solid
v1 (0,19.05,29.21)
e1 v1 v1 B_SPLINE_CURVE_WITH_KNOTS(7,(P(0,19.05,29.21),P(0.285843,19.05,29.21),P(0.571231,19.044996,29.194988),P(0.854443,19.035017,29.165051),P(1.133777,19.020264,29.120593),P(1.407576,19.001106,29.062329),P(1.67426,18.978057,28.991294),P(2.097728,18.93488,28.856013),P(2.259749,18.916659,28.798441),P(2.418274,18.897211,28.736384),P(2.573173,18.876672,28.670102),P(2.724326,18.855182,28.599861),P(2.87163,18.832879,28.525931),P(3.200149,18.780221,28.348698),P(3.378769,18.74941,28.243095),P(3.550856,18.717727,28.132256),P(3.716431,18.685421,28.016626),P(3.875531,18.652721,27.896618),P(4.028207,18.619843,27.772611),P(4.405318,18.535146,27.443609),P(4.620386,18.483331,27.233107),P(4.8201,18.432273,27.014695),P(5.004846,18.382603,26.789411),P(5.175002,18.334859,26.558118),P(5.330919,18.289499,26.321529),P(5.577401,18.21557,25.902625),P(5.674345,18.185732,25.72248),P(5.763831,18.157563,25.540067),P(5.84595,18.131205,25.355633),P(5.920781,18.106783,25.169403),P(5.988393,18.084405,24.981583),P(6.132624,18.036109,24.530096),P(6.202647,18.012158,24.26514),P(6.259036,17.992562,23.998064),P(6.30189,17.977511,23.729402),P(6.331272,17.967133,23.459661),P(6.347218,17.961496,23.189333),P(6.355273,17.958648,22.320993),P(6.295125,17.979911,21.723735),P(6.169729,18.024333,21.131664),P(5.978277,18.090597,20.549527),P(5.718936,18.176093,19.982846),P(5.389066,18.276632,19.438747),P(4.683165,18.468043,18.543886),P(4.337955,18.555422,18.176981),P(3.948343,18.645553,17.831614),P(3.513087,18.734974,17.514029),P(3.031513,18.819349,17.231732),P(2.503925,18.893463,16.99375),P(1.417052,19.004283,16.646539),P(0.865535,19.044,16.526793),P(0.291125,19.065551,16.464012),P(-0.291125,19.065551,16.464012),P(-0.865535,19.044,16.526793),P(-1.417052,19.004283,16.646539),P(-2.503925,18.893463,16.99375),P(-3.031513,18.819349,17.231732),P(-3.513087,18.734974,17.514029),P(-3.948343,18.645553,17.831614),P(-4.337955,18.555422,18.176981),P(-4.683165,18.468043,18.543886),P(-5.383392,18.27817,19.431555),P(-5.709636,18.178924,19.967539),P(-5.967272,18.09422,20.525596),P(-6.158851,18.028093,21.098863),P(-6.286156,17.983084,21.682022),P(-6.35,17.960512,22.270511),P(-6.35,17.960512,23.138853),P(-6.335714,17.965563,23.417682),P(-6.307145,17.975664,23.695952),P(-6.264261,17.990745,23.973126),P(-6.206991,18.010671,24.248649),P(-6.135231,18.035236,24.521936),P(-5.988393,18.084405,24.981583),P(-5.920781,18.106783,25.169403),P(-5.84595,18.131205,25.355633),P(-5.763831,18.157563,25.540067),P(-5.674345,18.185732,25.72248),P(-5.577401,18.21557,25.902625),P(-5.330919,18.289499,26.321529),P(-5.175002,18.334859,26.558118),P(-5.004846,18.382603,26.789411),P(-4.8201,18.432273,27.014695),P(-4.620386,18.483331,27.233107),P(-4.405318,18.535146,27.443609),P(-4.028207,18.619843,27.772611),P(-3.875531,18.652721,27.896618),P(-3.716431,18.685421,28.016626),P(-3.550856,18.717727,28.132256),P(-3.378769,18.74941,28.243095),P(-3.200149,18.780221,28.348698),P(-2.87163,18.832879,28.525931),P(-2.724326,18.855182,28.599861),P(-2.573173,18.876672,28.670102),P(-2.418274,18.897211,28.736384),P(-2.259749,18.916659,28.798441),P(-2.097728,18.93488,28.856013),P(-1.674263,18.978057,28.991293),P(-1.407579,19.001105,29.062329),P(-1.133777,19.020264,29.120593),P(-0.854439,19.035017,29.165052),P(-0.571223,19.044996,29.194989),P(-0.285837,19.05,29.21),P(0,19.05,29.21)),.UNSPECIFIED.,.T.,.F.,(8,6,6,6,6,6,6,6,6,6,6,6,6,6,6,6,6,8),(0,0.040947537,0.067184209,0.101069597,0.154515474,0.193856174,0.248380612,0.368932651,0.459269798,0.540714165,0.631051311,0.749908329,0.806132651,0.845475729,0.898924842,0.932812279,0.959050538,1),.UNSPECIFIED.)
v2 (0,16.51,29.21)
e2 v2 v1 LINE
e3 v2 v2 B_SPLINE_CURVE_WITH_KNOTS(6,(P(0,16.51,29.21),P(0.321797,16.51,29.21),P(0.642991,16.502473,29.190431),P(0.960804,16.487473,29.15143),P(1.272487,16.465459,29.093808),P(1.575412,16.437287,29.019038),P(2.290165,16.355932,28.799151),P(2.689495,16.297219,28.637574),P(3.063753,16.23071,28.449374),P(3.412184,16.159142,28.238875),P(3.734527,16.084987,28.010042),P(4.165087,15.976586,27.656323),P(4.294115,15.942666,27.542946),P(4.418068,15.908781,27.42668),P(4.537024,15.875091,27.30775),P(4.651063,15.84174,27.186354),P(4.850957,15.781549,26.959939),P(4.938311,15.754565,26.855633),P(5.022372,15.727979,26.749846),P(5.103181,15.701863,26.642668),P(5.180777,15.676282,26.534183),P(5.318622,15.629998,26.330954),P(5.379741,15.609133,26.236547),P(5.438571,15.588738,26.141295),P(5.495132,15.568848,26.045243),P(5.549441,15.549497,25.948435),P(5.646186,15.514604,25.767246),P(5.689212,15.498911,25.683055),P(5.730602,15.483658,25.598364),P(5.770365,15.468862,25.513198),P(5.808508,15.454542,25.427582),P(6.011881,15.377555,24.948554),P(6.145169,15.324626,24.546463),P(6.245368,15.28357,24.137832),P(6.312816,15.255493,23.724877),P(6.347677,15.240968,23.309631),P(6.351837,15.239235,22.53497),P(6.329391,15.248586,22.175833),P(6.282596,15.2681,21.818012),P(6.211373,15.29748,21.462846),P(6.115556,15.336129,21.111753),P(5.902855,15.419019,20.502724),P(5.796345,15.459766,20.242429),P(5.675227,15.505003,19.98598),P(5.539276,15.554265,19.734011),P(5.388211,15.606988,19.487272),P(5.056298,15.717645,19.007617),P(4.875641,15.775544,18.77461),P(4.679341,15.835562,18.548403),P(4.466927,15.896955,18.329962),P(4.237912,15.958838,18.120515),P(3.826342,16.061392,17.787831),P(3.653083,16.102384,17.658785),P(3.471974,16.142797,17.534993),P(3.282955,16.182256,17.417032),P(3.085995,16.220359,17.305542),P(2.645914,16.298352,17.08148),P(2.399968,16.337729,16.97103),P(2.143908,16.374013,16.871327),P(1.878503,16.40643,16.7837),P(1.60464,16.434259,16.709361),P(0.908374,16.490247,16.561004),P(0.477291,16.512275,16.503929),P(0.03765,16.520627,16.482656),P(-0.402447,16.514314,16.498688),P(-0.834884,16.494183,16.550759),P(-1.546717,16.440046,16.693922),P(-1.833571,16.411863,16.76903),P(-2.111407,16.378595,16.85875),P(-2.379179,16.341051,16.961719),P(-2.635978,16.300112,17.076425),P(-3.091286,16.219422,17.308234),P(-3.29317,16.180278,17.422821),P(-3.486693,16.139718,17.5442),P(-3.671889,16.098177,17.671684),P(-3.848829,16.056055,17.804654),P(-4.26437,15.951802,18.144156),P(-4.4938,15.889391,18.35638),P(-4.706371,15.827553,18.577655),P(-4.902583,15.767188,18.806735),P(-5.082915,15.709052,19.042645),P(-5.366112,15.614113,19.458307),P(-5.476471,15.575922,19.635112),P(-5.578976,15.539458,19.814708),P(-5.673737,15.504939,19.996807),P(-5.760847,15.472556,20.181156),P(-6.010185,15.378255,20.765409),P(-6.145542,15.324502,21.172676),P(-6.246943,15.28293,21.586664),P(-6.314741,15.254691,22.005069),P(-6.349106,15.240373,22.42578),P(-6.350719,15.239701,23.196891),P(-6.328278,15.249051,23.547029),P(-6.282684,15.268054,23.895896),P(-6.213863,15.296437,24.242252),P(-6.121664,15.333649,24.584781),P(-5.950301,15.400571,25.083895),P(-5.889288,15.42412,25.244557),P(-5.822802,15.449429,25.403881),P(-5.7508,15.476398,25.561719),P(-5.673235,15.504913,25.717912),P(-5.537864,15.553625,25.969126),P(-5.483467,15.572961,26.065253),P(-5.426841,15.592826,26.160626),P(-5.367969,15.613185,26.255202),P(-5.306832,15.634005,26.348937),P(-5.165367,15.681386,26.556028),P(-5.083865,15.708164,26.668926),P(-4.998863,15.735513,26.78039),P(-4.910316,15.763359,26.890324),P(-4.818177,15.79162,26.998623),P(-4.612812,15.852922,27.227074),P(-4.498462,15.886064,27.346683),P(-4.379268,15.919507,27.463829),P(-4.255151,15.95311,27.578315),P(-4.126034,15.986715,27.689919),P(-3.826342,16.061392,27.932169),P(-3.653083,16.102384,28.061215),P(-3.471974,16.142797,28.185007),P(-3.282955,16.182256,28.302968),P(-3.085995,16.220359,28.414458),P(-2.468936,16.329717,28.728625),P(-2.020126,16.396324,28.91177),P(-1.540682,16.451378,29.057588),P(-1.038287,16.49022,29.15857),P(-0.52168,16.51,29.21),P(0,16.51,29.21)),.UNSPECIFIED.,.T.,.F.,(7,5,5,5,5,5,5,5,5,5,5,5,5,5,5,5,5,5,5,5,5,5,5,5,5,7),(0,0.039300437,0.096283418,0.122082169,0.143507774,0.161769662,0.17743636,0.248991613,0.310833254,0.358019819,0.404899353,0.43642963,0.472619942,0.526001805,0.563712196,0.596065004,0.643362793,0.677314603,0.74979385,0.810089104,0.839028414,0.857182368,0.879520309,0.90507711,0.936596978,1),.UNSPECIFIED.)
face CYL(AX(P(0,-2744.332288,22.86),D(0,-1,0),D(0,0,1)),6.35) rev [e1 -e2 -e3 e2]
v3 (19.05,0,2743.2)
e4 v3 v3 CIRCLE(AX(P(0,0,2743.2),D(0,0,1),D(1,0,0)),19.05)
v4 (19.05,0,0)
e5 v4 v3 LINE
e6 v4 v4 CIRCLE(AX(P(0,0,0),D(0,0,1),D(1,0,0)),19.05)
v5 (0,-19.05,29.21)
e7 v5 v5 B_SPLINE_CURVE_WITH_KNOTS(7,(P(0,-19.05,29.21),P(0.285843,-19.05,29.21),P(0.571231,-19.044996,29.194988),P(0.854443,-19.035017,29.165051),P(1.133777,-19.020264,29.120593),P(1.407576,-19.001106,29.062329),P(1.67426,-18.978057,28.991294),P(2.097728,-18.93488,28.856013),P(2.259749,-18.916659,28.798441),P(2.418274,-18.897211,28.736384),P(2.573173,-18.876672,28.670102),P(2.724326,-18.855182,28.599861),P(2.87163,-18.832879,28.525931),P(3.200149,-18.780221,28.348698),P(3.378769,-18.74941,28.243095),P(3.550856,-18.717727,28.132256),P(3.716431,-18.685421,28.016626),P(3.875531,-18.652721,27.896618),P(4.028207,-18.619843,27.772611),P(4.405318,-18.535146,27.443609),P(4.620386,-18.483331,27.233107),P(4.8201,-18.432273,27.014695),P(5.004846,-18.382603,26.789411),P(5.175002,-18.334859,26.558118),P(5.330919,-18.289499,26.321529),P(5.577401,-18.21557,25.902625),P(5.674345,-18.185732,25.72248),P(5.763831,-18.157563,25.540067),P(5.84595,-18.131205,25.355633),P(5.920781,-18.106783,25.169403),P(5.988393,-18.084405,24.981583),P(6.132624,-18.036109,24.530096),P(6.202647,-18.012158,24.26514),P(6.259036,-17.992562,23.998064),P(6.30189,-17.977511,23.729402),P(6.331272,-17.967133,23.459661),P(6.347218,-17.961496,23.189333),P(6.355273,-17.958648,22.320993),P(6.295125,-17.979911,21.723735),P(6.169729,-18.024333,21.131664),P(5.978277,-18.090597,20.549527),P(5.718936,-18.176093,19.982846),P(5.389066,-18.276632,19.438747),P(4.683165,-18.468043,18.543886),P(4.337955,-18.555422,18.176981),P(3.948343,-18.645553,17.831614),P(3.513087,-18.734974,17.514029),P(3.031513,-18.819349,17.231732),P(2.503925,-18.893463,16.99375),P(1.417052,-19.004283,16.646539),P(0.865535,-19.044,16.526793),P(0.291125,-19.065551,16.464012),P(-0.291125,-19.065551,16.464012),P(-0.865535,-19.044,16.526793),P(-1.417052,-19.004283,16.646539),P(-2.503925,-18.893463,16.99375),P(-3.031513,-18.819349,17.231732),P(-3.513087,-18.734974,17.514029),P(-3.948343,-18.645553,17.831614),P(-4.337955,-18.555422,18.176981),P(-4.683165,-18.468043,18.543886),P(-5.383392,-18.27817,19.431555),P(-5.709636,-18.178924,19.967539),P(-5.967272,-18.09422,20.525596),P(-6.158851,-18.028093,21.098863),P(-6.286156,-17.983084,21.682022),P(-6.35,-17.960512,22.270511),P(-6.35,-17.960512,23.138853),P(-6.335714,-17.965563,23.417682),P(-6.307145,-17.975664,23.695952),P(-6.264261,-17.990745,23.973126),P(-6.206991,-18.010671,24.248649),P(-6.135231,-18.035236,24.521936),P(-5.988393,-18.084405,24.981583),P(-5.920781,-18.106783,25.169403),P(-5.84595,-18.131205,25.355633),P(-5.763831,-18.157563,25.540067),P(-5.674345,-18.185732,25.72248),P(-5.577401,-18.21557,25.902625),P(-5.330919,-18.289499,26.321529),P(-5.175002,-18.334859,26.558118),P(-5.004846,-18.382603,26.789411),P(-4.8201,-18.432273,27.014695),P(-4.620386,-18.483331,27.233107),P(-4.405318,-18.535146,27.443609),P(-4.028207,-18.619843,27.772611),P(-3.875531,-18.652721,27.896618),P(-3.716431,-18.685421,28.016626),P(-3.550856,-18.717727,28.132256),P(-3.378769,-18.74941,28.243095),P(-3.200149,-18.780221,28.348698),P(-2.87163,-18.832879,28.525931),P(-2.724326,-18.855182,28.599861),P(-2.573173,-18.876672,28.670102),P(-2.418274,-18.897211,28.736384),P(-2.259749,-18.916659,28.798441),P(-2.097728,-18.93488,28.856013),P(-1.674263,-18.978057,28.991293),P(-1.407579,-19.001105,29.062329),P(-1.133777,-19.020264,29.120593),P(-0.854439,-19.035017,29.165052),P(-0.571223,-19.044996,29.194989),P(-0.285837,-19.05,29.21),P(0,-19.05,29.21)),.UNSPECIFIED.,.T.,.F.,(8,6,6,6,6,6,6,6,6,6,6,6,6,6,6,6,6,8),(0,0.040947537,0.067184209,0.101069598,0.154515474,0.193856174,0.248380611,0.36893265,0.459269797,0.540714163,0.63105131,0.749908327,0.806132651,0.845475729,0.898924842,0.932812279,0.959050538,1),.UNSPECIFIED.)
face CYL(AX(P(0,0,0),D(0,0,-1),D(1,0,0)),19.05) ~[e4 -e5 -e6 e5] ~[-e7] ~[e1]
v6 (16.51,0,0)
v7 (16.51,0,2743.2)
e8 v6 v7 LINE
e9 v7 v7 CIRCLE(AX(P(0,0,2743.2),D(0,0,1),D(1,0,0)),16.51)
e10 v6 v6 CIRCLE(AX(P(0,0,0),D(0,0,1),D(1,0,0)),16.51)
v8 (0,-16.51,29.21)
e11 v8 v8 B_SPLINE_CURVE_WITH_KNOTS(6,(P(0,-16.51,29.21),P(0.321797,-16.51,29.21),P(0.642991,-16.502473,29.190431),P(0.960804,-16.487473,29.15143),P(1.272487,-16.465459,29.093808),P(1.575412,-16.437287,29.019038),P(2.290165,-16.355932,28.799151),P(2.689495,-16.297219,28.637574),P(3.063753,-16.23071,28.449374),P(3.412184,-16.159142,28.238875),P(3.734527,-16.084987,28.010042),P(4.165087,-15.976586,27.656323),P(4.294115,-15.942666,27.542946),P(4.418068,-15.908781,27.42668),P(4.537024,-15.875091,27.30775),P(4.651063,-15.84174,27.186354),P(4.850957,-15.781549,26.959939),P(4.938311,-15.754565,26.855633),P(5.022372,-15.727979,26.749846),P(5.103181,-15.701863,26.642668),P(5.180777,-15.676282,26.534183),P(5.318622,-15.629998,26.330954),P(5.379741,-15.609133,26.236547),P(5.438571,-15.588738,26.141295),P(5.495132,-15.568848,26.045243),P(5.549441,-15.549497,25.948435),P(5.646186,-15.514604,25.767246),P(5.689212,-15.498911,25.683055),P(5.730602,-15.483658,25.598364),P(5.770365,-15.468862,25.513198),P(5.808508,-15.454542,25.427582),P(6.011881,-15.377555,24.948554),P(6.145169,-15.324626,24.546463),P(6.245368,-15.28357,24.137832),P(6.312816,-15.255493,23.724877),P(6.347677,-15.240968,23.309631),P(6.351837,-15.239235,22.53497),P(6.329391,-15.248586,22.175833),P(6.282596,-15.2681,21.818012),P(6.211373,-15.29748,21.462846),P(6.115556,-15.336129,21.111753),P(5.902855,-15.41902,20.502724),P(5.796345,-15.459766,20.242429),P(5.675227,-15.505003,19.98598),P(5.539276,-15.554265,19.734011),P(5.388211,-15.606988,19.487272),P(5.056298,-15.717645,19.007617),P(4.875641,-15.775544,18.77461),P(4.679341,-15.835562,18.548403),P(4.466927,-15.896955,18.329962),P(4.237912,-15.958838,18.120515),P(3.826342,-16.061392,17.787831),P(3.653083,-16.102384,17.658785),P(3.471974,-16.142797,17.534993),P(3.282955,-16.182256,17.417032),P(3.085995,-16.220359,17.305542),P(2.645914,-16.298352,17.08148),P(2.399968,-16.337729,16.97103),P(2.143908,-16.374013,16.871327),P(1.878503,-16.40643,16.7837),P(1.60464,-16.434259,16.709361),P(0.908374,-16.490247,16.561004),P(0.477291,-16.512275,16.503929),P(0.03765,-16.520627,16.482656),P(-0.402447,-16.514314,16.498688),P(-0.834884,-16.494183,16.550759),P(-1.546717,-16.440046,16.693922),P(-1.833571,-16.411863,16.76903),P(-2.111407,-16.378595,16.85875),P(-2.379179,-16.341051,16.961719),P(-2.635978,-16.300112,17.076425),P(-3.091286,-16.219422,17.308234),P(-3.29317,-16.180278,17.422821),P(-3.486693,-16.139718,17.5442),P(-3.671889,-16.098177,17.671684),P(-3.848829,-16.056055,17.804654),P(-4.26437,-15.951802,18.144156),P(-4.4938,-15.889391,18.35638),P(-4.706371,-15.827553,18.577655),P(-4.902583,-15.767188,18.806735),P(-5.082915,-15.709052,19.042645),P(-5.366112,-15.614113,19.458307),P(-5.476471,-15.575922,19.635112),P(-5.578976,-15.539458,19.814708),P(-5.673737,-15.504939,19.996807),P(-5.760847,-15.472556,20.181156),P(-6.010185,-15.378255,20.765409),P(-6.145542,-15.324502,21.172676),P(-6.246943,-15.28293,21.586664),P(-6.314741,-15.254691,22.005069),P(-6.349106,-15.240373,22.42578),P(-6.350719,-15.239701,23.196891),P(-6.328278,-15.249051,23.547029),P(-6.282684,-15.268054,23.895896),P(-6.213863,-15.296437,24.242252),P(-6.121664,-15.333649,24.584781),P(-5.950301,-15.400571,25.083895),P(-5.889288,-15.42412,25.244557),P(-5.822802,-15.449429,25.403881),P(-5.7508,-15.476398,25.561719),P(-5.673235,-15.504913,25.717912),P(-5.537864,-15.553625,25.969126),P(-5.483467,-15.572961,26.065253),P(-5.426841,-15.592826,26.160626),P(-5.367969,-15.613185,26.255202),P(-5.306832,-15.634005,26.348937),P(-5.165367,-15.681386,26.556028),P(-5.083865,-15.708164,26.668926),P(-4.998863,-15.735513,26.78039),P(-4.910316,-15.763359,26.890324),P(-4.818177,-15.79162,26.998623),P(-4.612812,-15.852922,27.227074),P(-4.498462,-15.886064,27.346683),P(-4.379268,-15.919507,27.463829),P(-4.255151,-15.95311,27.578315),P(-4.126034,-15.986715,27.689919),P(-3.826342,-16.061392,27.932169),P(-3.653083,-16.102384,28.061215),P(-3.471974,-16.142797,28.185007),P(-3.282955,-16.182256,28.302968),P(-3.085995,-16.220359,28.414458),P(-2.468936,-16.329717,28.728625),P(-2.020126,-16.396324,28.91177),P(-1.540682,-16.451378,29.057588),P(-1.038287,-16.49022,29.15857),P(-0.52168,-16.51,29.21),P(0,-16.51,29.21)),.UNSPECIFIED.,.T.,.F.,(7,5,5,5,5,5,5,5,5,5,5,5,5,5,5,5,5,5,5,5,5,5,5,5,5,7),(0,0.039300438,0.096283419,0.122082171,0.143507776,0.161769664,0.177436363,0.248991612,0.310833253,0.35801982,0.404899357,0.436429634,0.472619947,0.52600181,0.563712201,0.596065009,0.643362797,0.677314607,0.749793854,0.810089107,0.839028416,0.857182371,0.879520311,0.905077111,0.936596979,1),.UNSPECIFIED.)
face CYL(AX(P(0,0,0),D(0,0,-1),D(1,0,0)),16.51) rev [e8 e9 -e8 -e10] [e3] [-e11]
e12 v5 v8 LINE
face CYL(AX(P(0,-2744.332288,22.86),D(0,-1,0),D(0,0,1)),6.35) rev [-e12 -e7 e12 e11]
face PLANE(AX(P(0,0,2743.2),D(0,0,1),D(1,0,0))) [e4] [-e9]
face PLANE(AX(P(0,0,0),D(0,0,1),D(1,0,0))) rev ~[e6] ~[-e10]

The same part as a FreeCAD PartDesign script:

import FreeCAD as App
import Part
import Sketcher

V = App.Vector
Q = App.Units.Quantity

doc = App.newDocument("Part")
body = doc.addObject("PartDesign::Body", "Body")

# Sketch on XY plane
sketch1 = body.newObject("Sketcher::SketchObject", "Sketch")
sketch1.AttachmentSupport = (doc.getObject("XY_Plane"), [""])
sketch1.MapMode = "FlatFace"
sketch1.addGeometry([
    Part.Circle(V(0, 0, 0), V(0, 0, 1), 19.05),
    Part.Circle(V(0, 0, 0), V(0, 0, 1), 16.51),
], False)
sketch1.addConstraint([
    Sketcher.Constraint("Coincident", 0, 3, -1, 1),
    Sketcher.Constraint("Coincident", 1, 3, -1, 1),
    Sketcher.Constraint("Diameter", 0, Q("1.5 in")),
    Sketcher.Constraint("Diameter", 1, Q("1.3 in")),
])
pad1 = body.newObject("PartDesign::Pad", "Pad")
pad1.Profile = sketch1
pad1.Length = Q("108 in")

# Sketch on XZ plane
sketch2 = body.newObject("Sketcher::SketchObject", "Sketch001")
sketch2.AttachmentSupport = (doc.getObject("XZ_Plane"), [""])
sketch2.MapMode = "FlatFace"
sketch2.addGeometry(Part.Circle(V(0, 22.86, 0), V(0, 0, 1), 6.35), False)
sketch2.addConstraint([
    Sketcher.Constraint("PointOnObject", 0, 3, -2),
    Sketcher.Constraint("Diameter", 0, Q("0.5 in")),
    Sketcher.Constraint("DistanceY", -1, 1, 0, 3, Q("0.9 in")),
])
pocket1 = body.newObject("PartDesign::Pocket", "Pocket")
pocket1.Profile = sketch2
pocket1.Type = "ThroughAll"
pocket1.Midplane = True

doc.recompute()
